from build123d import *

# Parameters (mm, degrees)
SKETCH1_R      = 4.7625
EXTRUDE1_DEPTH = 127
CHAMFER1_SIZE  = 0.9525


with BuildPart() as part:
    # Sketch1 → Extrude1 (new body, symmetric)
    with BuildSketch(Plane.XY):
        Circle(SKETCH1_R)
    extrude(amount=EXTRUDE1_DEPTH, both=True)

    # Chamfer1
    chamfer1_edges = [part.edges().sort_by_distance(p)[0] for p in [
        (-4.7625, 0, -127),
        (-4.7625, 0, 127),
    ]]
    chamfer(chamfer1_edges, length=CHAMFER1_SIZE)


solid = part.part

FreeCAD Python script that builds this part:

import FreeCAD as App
import Part
import Sketcher

V = App.Vector
Q = App.Units.Quantity


def edges_at(feature, points):
    """Names of the edges that pass closest to the given points."""
    edges = feature.Shape.Edges
    near = lambda p: min(range(len(edges)), key=lambda i: edges[i].distToShape(Part.Vertex(*p))[0])
    return sorted({f"Edge{near(p) + 1}" for p in points})

doc = App.newDocument("Part")
body = doc.addObject("PartDesign::Body", "Body")

# Sketch on XY plane
sketch1 = body.newObject("Sketcher::SketchObject", "Sketch")
sketch1.AttachmentSupport = (doc.getObject("XY_Plane"), [""])
sketch1.MapMode = "FlatFace"
sketch1.addGeometry(Part.Circle(V(0, 0, 0), V(0, 0, 1), 4.8), False)
sketch1.addConstraint([
    Sketcher.Constraint("Coincident", 0, 3, -1, 1),
    Sketcher.Constraint("Diameter", 0, Q("0.375 in")),
])
pad1 = body.newObject("PartDesign::Pad", "Pad")
pad1.Profile = sketch1
pad1.Length = Q("10 in")
pad1.Midplane = True
doc.recompute()

chamfer = body.newObject("PartDesign::Chamfer", "Chamfer")
chamfer.Base = (pad1, edges_at(pad1, [(-4.763, 0, -127), (-4.763, 0, 127)]))
chamfer.Size = Q("0.0375 in")

doc.recompute()
